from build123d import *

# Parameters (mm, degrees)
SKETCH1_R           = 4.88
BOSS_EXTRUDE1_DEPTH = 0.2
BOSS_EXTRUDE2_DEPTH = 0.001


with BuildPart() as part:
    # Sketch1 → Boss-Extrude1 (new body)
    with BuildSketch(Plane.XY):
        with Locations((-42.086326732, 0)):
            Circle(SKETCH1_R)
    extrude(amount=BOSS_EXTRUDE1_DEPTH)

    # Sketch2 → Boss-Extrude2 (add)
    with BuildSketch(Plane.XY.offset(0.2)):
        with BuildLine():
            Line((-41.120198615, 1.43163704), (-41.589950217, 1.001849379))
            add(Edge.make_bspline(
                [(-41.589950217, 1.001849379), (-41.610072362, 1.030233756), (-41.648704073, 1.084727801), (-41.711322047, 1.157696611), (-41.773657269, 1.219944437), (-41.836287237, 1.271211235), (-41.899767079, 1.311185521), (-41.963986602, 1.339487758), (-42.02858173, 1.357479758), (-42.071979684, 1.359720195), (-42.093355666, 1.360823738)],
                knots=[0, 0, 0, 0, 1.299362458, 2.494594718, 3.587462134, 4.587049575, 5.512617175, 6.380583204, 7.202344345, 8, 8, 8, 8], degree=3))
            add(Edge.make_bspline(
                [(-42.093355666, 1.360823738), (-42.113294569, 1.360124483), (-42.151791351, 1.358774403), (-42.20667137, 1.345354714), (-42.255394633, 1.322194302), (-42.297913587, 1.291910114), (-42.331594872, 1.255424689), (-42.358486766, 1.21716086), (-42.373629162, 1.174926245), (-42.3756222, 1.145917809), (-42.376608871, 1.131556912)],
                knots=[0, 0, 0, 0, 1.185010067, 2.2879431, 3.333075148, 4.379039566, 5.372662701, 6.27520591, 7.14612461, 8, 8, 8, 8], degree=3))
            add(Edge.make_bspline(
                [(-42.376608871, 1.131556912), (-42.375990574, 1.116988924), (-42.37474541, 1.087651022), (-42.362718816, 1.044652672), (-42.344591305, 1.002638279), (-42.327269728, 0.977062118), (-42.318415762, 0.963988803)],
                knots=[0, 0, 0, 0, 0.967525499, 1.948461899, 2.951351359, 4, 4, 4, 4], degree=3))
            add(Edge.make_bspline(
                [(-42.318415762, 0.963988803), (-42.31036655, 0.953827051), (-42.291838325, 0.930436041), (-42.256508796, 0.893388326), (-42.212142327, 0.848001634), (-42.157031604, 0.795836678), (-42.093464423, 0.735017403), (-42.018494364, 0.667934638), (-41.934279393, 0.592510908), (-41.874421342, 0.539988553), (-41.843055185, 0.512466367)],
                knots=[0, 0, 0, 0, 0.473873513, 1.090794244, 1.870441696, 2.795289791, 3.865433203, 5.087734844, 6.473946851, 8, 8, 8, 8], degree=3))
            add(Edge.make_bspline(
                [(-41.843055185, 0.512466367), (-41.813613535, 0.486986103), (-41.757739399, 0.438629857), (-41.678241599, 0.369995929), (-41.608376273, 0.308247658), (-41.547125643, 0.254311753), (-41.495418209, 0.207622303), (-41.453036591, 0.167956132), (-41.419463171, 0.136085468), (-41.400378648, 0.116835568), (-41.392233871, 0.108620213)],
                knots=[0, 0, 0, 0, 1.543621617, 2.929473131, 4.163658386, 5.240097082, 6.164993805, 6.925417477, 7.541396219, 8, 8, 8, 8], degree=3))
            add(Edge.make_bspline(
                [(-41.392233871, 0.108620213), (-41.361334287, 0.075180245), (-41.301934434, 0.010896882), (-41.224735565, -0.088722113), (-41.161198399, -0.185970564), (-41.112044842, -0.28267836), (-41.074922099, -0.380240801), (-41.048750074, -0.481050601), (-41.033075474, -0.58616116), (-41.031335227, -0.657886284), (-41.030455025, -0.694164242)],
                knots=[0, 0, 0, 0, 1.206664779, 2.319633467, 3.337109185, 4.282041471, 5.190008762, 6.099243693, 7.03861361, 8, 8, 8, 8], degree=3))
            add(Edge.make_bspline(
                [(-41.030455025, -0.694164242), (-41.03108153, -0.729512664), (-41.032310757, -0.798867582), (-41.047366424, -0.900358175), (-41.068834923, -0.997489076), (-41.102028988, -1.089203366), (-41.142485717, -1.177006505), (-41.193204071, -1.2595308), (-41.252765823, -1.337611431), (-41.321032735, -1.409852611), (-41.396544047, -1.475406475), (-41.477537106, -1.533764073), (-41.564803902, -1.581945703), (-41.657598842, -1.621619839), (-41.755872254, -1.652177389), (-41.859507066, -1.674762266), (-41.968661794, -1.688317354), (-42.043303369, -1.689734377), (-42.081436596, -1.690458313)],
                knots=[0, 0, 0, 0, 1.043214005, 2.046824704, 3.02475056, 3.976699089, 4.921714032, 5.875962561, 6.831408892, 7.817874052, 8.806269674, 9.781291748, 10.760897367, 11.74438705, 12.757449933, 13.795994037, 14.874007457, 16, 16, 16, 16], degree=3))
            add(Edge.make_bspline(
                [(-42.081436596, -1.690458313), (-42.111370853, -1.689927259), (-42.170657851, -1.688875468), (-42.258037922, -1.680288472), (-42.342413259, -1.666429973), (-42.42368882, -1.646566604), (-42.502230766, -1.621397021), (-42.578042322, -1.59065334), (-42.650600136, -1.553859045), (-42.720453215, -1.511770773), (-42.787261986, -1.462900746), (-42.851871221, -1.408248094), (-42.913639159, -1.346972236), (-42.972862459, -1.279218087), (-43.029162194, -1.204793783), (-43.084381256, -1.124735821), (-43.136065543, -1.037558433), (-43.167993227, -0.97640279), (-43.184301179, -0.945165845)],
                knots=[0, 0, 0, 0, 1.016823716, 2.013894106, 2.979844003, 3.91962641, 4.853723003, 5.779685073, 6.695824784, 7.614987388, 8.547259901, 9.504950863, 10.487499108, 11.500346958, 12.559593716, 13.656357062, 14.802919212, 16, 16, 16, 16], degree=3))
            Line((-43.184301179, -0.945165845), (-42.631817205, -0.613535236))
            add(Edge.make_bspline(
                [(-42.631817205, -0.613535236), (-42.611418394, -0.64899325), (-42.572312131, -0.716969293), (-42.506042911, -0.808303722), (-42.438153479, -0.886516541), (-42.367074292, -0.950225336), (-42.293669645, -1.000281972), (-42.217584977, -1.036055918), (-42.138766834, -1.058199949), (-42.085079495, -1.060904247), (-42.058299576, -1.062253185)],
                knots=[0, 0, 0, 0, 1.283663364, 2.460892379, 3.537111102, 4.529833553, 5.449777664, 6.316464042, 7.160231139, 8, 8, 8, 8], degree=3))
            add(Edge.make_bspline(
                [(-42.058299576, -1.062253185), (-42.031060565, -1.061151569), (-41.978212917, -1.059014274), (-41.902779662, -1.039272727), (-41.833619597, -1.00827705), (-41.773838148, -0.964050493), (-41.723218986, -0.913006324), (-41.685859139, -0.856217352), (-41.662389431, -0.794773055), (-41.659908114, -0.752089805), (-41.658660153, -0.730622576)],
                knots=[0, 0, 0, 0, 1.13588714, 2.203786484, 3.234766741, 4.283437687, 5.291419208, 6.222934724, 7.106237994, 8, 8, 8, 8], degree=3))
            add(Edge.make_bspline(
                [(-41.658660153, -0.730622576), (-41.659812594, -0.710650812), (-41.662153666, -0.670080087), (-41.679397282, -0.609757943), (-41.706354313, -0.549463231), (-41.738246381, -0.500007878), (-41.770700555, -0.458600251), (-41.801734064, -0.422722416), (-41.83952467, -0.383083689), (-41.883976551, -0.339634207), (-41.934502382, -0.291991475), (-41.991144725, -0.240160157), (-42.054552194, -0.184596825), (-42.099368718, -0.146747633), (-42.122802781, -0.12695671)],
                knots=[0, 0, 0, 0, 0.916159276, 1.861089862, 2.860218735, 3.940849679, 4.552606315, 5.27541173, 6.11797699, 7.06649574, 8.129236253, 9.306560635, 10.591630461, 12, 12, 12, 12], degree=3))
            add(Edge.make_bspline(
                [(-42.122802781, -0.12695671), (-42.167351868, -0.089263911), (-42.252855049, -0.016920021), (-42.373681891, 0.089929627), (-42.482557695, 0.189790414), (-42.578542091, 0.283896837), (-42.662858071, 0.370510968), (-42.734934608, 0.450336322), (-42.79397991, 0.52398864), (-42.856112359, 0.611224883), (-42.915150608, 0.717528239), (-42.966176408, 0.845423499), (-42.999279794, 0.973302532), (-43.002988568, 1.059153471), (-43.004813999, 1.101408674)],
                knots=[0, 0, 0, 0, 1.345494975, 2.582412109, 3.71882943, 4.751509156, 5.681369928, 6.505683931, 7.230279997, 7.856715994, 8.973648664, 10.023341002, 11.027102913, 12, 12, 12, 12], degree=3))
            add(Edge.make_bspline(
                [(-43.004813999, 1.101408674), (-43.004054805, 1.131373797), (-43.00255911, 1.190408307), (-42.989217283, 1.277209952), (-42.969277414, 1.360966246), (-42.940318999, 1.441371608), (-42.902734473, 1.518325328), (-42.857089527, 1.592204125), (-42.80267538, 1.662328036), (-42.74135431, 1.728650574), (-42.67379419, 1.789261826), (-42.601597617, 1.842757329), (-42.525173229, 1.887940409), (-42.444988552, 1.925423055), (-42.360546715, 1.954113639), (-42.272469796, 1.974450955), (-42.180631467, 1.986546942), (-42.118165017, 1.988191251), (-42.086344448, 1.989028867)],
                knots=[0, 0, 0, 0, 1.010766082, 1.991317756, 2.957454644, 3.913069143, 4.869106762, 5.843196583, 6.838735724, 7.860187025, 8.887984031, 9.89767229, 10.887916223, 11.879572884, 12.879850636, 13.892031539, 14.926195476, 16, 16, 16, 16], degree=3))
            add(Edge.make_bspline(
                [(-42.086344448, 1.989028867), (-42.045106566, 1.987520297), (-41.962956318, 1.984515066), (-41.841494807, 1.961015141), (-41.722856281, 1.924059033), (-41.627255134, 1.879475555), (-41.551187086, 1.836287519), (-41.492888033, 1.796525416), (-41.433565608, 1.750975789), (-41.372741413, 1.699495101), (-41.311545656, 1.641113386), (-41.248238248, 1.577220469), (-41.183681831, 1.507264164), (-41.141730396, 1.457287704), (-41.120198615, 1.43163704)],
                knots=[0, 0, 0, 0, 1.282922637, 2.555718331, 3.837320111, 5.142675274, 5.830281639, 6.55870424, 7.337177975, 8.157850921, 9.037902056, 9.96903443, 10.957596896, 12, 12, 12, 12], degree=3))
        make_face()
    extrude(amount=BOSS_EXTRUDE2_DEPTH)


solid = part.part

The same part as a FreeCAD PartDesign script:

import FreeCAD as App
import Part
import Sketcher
from FreeCAD import Vector

doc = App.newDocument("Part")
body = doc.addObject("PartDesign::Body", "Body")

# Sketch on XY plane
sketch1 = body.newObject("Sketcher::SketchObject", "Sketch")
sketch1.AttachmentSupport = (doc.getObject("XY_Plane"), [""])
sketch1.MapMode = "FlatFace"
sketch1.addGeometry(Part.Circle(Vector(-42.1, 0, 0), Vector(0, 0, 1), 4.9), False)
sketch1.addConstraint([
    Sketcher.Constraint("PointOnObject", 0, 3, -1),
    Sketcher.Constraint("Diameter", 0, 9.76),
    Sketcher.Constraint("DistanceX", 0, 3, -1, 1, 42.086327),
])
pad1 = body.newObject("PartDesign::Pad", "Pad")
pad1.Profile = sketch1
pad1.Length = 0.2

# Sketch on XY plane
sketch2 = body.newObject("Sketcher::SketchObject", "Sketch001")
sketch2.AttachmentSupport = (doc.getObject("XY_Plane"), [""])
sketch2.MapMode = "FlatFace"
sketch2.AttachmentOffset = App.Placement(Vector(0, 0, 0.2), App.Rotation())
sketch2.addGeometry([
    Part.LineSegment(Vector(-41.58995, 1.001849, 0), Vector(-41.120199, 1.431637, 0)),  # 0
    Part.BSplineCurve([Vector(-42.086344, 1.989029, 0), Vector(-42.045107, 1.98752, 0), Vector(-41.962956, 1.984515, 0), Vector(-41.841495, 1.961015, 0), Vector(-41.722856, 1.924059, 0), Vector(-41.627255, 1.879476, 0), Vector(-41.551187, 1.836288, 0), Vector(-41.492888, 1.796525, 0), Vector(-41.433566, 1.750976, 0), Vector(-41.372741, 1.699495, 0), Vector(-41.311546, 1.641113, 0), Vector(-41.248238, 1.57722, 0), Vector(-41.183682, 1.507264, 0), Vector(-41.14173, 1.457288, 0), Vector(-41.120199, 1.431637, 0)], [4, 1, 1, 1, 1, 1, 1, 1, 1, 1, 1, 1, 4], [0, 1.282922637, 2.555718331, 3.837320111, 5.142675274, 5.830281639, 6.55870424, 7.337177975, 8.157850921, 9.037902056, 9.96903443, 10.957596896, 12], False, 3, [1, 1, 1, 1, 1, 1, 1, 1, 1, 1, 1, 1, 1, 1, 1], False),  # 1
    Part.BSplineCurve([Vector(-43.004814, 1.101409, 0), Vector(-43.004055, 1.131374, 0), Vector(-43.002559, 1.190408, 0), Vector(-42.989217, 1.27721, 0), Vector(-42.969277, 1.360966, 0), Vector(-42.940319, 1.441372, 0), Vector(-42.902734, 1.518325, 0), Vector(-42.85709, 1.592204, 0), Vector(-42.802675, 1.662328, 0), Vector(-42.741354, 1.728651, 0), Vector(-42.673794, 1.789262, 0), Vector(-42.601598, 1.842757, 0), Vector(-42.525173, 1.88794, 0), Vector(-42.444989, 1.925423, 0), Vector(-42.360547, 1.954114, 0), Vector(-42.27247, 1.974451, 0), Vector(-42.180631, 1.986547, 0), Vector(-42.118165, 1.988191, 0), Vector(-42.086344, 1.989029, 0)], [4, 1, 1, 1, 1, 1, 1, 1, 1, 1, 1, 1, 1, 1, 1, 1, 4], [0, 1.010766082, 1.991317756, 2.957454644, 3.913069143, 4.869106762, 5.843196583, 6.838735724, 7.860187025, 8.887984031, 9.89767229, 10.887916223, 11.879572884, 12.879850636, 13.892031539, 14.926195476, 16], False, 3, [1, 1, 1, 1, 1, 1, 1, 1, 1, 1, 1, 1, 1, 1, 1, 1, 1, 1, 1], False),  # 2
    Part.BSplineCurve([Vector(-42.122803, -0.126957, 0), Vector(-42.167352, -0.089264, 0), Vector(-42.252855, -0.01692, 0), Vector(-42.373682, 0.08993, 0), Vector(-42.482558, 0.18979, 0), Vector(-42.578542, 0.283897, 0), Vector(-42.662858, 0.370511, 0), Vector(-42.734935, 0.450336, 0), Vector(-42.79398, 0.523989, 0), Vector(-42.856112, 0.611225, 0), Vector(-42.915151, 0.717528, 0), Vector(-42.966176, 0.845423, 0), Vector(-42.99928, 0.973303, 0), Vector(-43.002989, 1.059153, 0), Vector(-43.004814, 1.101409, 0)], [4, 1, 1, 1, 1, 1, 1, 1, 1, 1, 1, 1, 4], [0, 1.345494975, 2.582412109, 3.71882943, 4.751509156, 5.681369928, 6.505683931, 7.230279997, 7.856715994, 8.973648664, 10.023341002, 11.027102913, 12], False, 3, [1, 1, 1, 1, 1, 1, 1, 1, 1, 1, 1, 1, 1, 1, 1], False),  # 3
    Part.BSplineCurve([Vector(-41.65866, -0.730623, 0), Vector(-41.659813, -0.710651, 0), Vector(-41.662154, -0.67008, 0), Vector(-41.679397, -0.609758, 0), Vector(-41.706354, -0.549463, 0), Vector(-41.738246, -0.500008, 0), Vector(-41.770701, -0.4586, 0), Vector(-41.801734, -0.422722, 0), Vector(-41.839525, -0.383084, 0), Vector(-41.883977, -0.339634, 0), Vector(-41.934502, -0.291991, 0), Vector(-41.991145, -0.24016, 0), Vector(-42.054552, -0.184597, 0), Vector(-42.099369, -0.146748, 0), Vector(-42.122803, -0.126957, 0)], [4, 1, 1, 1, 1, 1, 1, 1, 1, 1, 1, 1, 4], [0, 0.916159276, 1.861089862, 2.860218735, 3.940849679, 4.552606315, 5.27541173, 6.11797699, 7.06649574, 8.129236253, 9.306560635, 10.591630461, 12], False, 3, [1, 1, 1, 1, 1, 1, 1, 1, 1, 1, 1, 1, 1, 1, 1], False),  # 4
    Part.BSplineCurve([Vector(-42.0583, -1.062253, 0), Vector(-42.031061, -1.061152, 0), Vector(-41.978213, -1.059014, 0), Vector(-41.90278, -1.039273, 0), Vector(-41.83362, -1.008277, 0), Vector(-41.773838, -0.96405, 0), Vector(-41.723219, -0.913006, 0), Vector(-41.685859, -0.856217, 0), Vector(-41.662389, -0.794773, 0), Vector(-41.659908, -0.75209, 0), Vector(-41.65866, -0.730623, 0)], [4, 1, 1, 1, 1, 1, 1, 1, 4], [0, 1.13588714, 2.203786484, 3.234766741, 4.283437687, 5.291419208, 6.222934724, 7.106237994, 8], False, 3, [1, 1, 1, 1, 1, 1, 1, 1, 1, 1, 1], False),  # 5
    Part.BSplineCurve([Vector(-42.631817, -0.613535, 0), Vector(-42.611418, -0.648993, 0), Vector(-42.572312, -0.716969, 0), Vector(-42.506043, -0.808304, 0), Vector(-42.438153, -0.886517, 0), Vector(-42.367074, -0.950225, 0), Vector(-42.29367, -1.000282, 0), Vector(-42.217585, -1.036056, 0), Vector(-42.138767, -1.0582, 0), Vector(-42.085079, -1.060904, 0), Vector(-42.0583, -1.062253, 0)], [4, 1, 1, 1, 1, 1, 1, 1, 4], [0, 1.283663364, 2.460892379, 3.537111102, 4.529833553, 5.449777664, 6.316464042, 7.160231139, 8], False, 3, [1, 1, 1, 1, 1, 1, 1, 1, 1, 1, 1], False),  # 6
    Part.LineSegment(Vector(-42.631817, -0.613535, 0), Vector(-43.184301, -0.945166, 0)),  # 7
    Part.BSplineCurve([Vector(-42.081437, -1.690458, 0), Vector(-42.111371, -1.689927, 0), Vector(-42.170658, -1.688875, 0), Vector(-42.258038, -1.680288, 0), Vector(-42.342413, -1.66643, 0), Vector(-42.423689, -1.646567, 0), Vector(-42.502231, -1.621397, 0), Vector(-42.578042, -1.590653, 0), Vector(-42.6506, -1.553859, 0), Vector(-42.720453, -1.511771, 0), Vector(-42.787262, -1.462901, 0), Vector(-42.851871, -1.408248, 0), Vector(-42.913639, -1.346972, 0), Vector(-42.972862, -1.279218, 0), Vector(-43.029162, -1.204794, 0), Vector(-43.084381, -1.124736, 0), Vector(-43.136066, -1.037558, 0), Vector(-43.167993, -0.976403, 0), Vector(-43.184301, -0.945166, 0)], [4, 1, 1, 1, 1, 1, 1, 1, 1, 1, 1, 1, 1, 1, 1, 1, 4], [0, 1.016823716, 2.013894106, 2.979844003, 3.91962641, 4.853723003, 5.779685073, 6.695824784, 7.614987388, 8.547259901, 9.504950863, 10.487499108, 11.500346958, 12.559593716, 13.656357062, 14.802919212, 16], False, 3, [1, 1, 1, 1, 1, 1, 1, 1, 1, 1, 1, 1, 1, 1, 1, 1, 1, 1, 1], False),  # 8
    Part.BSplineCurve([Vector(-41.030455, -0.694164, 0), Vector(-41.031082, -0.729513, 0), Vector(-41.032311, -0.798868, 0), Vector(-41.047366, -0.900358, 0), Vector(-41.068835, -0.997489, 0), Vector(-41.102029, -1.089203, 0), Vector(-41.142486, -1.177007, 0), Vector(-41.193204, -1.259531, 0), Vector(-41.252766, -1.337611, 0), Vector(-41.321033, -1.409853, 0), Vector(-41.396544, -1.475406, 0), Vector(-41.477537, -1.533764, 0), Vector(-41.564804, -1.581946, 0), Vector(-41.657599, -1.62162, 0), Vector(-41.755872, -1.652177, 0), Vector(-41.859507, -1.674762, 0), Vector(-41.968662, -1.688317, 0), Vector(-42.043303, -1.689734, 0), Vector(-42.081437, -1.690458, 0)], [4, 1, 1, 1, 1, 1, 1, 1, 1, 1, 1, 1, 1, 1, 1, 1, 4], [0, 1.043214005, 2.046824704, 3.02475056, 3.976699089, 4.921714032, 5.875962561, 6.831408892, 7.817874052, 8.806269674, 9.781291748, 10.760897367, 11.74438705, 12.757449933, 13.795994037, 14.874007457, 16], False, 3, [1, 1, 1, 1, 1, 1, 1, 1, 1, 1, 1, 1, 1, 1, 1, 1, 1, 1, 1], False),  # 9
    Part.BSplineCurve([Vector(-41.392234, 0.10862, 0), Vector(-41.361334, 0.07518, 0), Vector(-41.301934, 0.010897, 0), Vector(-41.224736, -0.088722, 0), Vector(-41.161198, -0.185971, 0), Vector(-41.112045, -0.282678, 0), Vector(-41.074922, -0.380241, 0), Vector(-41.04875, -0.481051, 0), Vector(-41.033075, -0.586161, 0), Vector(-41.031335, -0.657886, 0), Vector(-41.030455, -0.694164, 0)], [4, 1, 1, 1, 1, 1, 1, 1, 4], [0, 1.206664779, 2.319633467, 3.337109185, 4.282041471, 5.190008762, 6.099243693, 7.03861361, 8], False, 3, [1, 1, 1, 1, 1, 1, 1, 1, 1, 1, 1], False),  # 10
    Part.BSplineCurve([Vector(-41.843055, 0.512466, 0), Vector(-41.813614, 0.486986, 0), Vector(-41.757739, 0.43863, 0), Vector(-41.678242, 0.369996, 0), Vector(-41.608376, 0.308248, 0), Vector(-41.547126, 0.254312, 0), Vector(-41.495418, 0.207622, 0), Vector(-41.453037, 0.167956, 0), Vector(-41.419463, 0.136085, 0), Vector(-41.400379, 0.116836, 0), Vector(-41.392234, 0.10862, 0)], [4, 1, 1, 1, 1, 1, 1, 1, 4], [0, 1.543621617, 2.929473131, 4.163658386, 5.240097082, 6.164993805, 6.925417477, 7.541396219, 8], False, 3, [1, 1, 1, 1, 1, 1, 1, 1, 1, 1, 1], False),  # 11
    Part.BSplineCurve([Vector(-42.318416, 0.963989, 0), Vector(-42.310367, 0.953827, 0), Vector(-42.291838, 0.930436, 0), Vector(-42.256509, 0.893388, 0), Vector(-42.212142, 0.848002, 0), Vector(-42.157032, 0.795837, 0), Vector(-42.093464, 0.735017, 0), Vector(-42.018494, 0.667935, 0), Vector(-41.934279, 0.592511, 0), Vector(-41.874421, 0.539989, 0), Vector(-41.843055, 0.512466, 0)], [4, 1, 1, 1, 1, 1, 1, 1, 4], [0, 0.473873513, 1.090794244, 1.870441696, 2.795289791, 3.865433203, 5.087734844, 6.473946851, 8], False, 3, [1, 1, 1, 1, 1, 1, 1, 1, 1, 1, 1], False),  # 12
    Part.BSplineCurve([Vector(-42.376609, 1.131557, 0), Vector(-42.375991, 1.116989, 0), Vector(-42.374745, 1.087651, 0), Vector(-42.362719, 1.044653, 0), Vector(-42.344591, 1.002638, 0), Vector(-42.32727, 0.977062, 0), Vector(-42.318416, 0.963989, 0)], [4, 1, 1, 1, 4], [0, 0.967525499, 1.948461899, 2.951351359, 4], False, 3, [1, 1, 1, 1, 1, 1, 1], False),  # 13
    Part.BSplineCurve([Vector(-42.093356, 1.360824, 0), Vector(-42.113295, 1.360124, 0), Vector(-42.151791, 1.358774, 0), Vector(-42.206671, 1.345355, 0), Vector(-42.255395, 1.322194, 0), Vector(-42.297914, 1.29191, 0), Vector(-42.331595, 1.255425, 0), Vector(-42.358487, 1.217161, 0), Vector(-42.373629, 1.174926, 0), Vector(-42.375622, 1.145918, 0), Vector(-42.376609, 1.131557, 0)], [4, 1, 1, 1, 1, 1, 1, 1, 4], [0, 1.185010067, 2.2879431, 3.333075148, 4.379039566, 5.372662701, 6.27520591, 7.14612461, 8], False, 3, [1, 1, 1, 1, 1, 1, 1, 1, 1, 1, 1], False),  # 14
    Part.BSplineCurve([Vector(-41.58995, 1.001849, 0), Vector(-41.610072, 1.030234, 0), Vector(-41.648704, 1.084728, 0), Vector(-41.711322, 1.157697, 0), Vector(-41.773657, 1.219944, 0), Vector(-41.836287, 1.271211, 0), Vector(-41.899767, 1.311186, 0), Vector(-41.963987, 1.339488, 0), Vector(-42.028582, 1.35748, 0), Vector(-42.07198, 1.35972, 0), Vector(-42.093356, 1.360824, 0)], [4, 1, 1, 1, 1, 1, 1, 1, 4], [0, 1.299362458, 2.494594718, 3.587462134, 4.587049575, 5.512617175, 6.380583204, 7.202344345, 8], False, 3, [1, 1, 1, 1, 1, 1, 1, 1, 1, 1, 1], False),  # 15
], False)
sketch2.addConstraint([
    Sketcher.Constraint("Block", 1),
    Sketcher.Constraint("Block", 2),
    Sketcher.Constraint("Block", 3),
    Sketcher.Constraint("Block", 4),
    Sketcher.Constraint("Block", 5),
    Sketcher.Constraint("Block", 6),
    Sketcher.Constraint("Block", 8),
    Sketcher.Constraint("Block", 9),
    Sketcher.Constraint("Block", 10),
    Sketcher.Constraint("Block", 11),
    Sketcher.Constraint("Block", 12),
    Sketcher.Constraint("Block", 13),
    Sketcher.Constraint("Block", 14),
    Sketcher.Constraint("Block", 15),
    Sketcher.Constraint("Coincident", 0, 2, 1, 2),
    Sketcher.Constraint("Coincident", 6, 1, 7, 1),
    Sketcher.Constraint("Coincident", 7, 2, 8, 2),
    Sketcher.Constraint("Coincident", 15, 1, 0, 1),
])
pad2 = body.newObject("PartDesign::Pad", "Pad001")
pad2.Profile = sketch2
pad2.Length = 0.001

doc.recompute()
